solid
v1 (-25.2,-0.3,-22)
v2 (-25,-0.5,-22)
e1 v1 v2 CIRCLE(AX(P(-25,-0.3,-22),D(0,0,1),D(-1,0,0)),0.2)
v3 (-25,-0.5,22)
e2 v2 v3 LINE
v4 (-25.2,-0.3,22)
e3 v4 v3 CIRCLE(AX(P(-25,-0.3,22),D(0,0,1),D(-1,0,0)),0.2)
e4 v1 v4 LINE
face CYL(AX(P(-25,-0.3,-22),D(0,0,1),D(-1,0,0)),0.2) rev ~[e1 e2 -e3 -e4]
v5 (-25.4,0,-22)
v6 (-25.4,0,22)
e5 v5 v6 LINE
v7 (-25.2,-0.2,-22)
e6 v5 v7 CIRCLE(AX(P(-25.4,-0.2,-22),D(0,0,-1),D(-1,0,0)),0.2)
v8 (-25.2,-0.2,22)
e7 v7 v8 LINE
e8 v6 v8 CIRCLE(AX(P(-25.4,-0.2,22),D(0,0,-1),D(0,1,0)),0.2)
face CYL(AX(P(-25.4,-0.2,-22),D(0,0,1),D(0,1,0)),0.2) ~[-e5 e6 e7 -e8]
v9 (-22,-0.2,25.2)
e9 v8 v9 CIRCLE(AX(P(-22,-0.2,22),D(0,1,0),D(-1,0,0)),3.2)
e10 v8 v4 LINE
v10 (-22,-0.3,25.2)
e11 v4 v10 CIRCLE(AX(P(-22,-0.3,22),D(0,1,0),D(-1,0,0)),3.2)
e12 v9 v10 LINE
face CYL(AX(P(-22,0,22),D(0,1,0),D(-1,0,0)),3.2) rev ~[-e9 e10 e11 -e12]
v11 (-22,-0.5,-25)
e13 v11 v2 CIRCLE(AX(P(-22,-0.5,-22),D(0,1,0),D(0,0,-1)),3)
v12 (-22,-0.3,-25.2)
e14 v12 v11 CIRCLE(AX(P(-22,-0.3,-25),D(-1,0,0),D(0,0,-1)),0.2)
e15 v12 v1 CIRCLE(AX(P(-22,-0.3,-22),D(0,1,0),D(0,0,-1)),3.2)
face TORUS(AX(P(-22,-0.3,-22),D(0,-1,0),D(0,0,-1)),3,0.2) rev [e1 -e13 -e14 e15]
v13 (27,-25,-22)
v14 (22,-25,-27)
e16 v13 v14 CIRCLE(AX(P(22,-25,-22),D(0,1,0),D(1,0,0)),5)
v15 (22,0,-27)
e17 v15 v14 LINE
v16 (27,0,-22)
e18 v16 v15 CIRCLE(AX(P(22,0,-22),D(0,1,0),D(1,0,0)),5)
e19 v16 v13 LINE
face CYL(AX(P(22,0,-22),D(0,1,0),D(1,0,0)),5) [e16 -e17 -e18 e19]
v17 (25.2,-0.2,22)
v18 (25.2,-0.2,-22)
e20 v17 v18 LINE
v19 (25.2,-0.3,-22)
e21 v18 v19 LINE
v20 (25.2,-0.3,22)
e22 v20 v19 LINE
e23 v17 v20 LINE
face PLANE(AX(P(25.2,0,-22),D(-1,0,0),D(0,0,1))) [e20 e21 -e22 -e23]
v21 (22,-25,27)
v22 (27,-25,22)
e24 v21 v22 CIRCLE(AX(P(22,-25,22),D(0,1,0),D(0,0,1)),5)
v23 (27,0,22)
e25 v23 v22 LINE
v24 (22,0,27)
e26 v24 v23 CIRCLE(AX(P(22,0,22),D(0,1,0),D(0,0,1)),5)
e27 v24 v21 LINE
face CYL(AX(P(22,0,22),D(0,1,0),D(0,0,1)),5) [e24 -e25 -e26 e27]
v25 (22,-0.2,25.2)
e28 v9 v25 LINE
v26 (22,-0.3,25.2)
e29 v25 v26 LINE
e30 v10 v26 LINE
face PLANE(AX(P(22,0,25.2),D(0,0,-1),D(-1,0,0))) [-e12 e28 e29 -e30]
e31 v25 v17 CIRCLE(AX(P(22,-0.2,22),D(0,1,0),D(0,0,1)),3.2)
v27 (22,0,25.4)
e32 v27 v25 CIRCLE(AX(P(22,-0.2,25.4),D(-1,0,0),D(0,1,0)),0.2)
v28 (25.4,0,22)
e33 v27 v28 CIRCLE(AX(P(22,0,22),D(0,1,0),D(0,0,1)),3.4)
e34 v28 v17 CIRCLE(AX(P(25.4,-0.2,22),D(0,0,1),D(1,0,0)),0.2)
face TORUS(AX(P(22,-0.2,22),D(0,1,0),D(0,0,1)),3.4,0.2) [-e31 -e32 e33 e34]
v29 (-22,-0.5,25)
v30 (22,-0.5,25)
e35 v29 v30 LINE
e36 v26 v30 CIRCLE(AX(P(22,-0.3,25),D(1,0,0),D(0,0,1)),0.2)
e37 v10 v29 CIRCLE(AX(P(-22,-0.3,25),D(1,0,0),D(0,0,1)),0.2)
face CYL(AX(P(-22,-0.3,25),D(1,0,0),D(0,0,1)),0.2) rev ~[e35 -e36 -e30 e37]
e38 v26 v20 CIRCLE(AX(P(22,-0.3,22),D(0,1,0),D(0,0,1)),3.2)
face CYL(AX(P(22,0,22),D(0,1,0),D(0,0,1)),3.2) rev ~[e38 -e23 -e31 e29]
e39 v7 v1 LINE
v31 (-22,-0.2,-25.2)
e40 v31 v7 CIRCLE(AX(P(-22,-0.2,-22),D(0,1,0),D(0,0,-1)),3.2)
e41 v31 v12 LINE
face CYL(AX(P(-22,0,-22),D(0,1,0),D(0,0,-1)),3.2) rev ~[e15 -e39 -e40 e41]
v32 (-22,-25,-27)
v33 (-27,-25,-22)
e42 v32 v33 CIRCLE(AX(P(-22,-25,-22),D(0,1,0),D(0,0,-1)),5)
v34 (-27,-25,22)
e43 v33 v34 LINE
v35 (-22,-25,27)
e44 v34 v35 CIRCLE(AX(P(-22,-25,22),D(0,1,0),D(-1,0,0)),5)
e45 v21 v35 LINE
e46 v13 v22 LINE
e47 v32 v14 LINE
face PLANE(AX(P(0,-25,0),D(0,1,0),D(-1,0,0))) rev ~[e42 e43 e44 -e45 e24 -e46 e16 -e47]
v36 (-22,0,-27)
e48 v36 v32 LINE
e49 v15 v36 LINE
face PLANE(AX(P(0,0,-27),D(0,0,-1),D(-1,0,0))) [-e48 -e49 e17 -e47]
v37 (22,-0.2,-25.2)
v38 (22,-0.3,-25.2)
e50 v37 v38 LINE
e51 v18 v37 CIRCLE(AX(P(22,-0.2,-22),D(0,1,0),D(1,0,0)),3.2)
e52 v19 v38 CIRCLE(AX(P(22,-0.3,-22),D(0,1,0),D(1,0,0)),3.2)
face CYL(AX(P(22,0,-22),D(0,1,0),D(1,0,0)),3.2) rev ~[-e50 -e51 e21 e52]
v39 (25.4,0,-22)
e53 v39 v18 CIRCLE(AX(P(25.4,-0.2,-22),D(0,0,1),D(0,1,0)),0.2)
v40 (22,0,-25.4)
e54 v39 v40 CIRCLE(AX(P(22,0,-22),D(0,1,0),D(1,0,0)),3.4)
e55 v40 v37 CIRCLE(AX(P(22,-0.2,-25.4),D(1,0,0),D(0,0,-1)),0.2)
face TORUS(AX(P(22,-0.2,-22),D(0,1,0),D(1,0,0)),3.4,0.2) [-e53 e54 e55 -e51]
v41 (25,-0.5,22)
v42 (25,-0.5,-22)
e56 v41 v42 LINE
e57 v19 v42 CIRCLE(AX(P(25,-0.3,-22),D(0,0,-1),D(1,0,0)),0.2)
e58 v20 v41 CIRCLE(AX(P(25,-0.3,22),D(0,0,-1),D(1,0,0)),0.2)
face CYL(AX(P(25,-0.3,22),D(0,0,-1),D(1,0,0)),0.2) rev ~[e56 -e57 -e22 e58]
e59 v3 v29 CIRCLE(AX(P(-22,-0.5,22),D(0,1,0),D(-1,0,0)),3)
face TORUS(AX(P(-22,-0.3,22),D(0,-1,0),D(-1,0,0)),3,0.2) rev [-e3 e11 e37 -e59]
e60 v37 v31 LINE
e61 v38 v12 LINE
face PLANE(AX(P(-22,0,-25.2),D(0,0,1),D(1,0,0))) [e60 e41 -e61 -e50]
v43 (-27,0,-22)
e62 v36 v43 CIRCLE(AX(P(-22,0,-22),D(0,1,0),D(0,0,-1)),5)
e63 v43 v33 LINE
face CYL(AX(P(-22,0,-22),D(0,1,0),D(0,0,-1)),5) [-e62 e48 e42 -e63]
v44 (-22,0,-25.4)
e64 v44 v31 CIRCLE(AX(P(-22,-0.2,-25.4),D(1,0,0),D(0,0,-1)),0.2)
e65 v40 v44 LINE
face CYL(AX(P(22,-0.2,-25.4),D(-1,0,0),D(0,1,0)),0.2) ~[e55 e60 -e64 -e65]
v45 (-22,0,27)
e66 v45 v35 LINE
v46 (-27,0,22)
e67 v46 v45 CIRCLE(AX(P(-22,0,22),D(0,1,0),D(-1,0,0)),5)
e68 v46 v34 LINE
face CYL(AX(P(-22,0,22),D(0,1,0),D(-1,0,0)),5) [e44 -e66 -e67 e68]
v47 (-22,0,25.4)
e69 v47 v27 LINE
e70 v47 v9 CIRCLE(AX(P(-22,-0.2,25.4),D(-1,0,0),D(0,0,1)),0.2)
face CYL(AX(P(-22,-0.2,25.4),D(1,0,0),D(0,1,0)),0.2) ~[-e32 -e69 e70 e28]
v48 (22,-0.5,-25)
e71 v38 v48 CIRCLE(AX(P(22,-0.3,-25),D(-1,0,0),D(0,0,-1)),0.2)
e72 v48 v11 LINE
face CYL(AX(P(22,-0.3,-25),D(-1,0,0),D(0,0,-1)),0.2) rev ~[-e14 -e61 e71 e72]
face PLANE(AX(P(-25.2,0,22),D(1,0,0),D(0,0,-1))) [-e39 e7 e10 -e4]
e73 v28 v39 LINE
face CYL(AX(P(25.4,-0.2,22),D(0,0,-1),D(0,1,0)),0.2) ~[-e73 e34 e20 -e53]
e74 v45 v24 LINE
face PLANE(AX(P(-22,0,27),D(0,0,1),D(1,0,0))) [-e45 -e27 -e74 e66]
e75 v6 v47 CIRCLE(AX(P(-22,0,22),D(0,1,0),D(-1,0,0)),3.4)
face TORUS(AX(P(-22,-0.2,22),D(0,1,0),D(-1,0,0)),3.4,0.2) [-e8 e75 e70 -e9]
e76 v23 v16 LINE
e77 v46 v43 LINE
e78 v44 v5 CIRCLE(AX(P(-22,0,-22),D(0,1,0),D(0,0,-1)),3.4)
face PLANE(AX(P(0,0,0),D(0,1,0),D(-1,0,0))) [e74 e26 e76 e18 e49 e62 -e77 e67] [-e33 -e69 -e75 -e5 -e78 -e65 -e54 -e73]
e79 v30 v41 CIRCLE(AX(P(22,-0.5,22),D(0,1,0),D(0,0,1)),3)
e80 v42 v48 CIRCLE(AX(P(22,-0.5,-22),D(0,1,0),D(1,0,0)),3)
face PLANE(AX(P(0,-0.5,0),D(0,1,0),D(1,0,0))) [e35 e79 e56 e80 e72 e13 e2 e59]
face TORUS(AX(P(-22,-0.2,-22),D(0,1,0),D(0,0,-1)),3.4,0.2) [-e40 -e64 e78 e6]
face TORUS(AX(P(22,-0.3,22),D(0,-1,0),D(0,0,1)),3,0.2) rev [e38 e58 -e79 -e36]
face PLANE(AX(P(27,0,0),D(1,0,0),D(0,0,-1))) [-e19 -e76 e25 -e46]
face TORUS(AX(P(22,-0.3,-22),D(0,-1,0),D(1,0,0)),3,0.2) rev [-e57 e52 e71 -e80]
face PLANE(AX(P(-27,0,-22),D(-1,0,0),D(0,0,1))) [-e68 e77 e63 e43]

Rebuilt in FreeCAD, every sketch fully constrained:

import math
import FreeCAD as App
import Part
import Sketcher
Q = App.Units.Quantity


def edges_at(feature, points):
    """Names of the edges that pass closest to the given points."""
    edges = feature.Shape.Edges
    near = lambda p: min(range(len(edges)), key=lambda i: edges[i].distToShape(Part.Vertex(*p))[0])
    return sorted({f"Edge{near(p) + 1}" for p in points})

doc = App.newDocument("Part")
params = doc.addObject("Spreadsheet::Sheet", "Params")
for row, (alias, value) in enumerate([
    ("sketch1_radius", "5 mm"),
    ("sketch1_width", "44 mm"),
    ("pad1_length", "25 mm"),
    ("sketch2_radius", "3.2 mm"),
    ("sketch2_width", "44 mm"),
    ("pocket1_length", "0.5 mm"),
    ("fillet_radius", "0.2 mm"),
], start=1):
    params.set(f"A{row}", alias)
    params.set(f"B{row}", "=" + value)
    params.setAlias(f"B{row}", alias)

body = doc.addObject("PartDesign::Body", "Body")

# Sketch on XZ plane
sketch1 = body.newObject("Sketcher::SketchObject", "Sketch")
sketch1.AttachmentSupport = (doc.getObject("XZ_Plane"), [""])
sketch1.MapMode = "FlatFace"
sketch1.addGeometry(Part.LineSegment(App.Vector(-27, -22, 0), App.Vector(-27, 22, 0)), False)
sketch1.addGeometry(Part.ArcOfCircle(Part.Circle(App.Vector(-22, 22, 0), App.Vector(0, 0, 1), 5), math.radians(90), math.radians(180)), False)
sketch1.addGeometry(Part.LineSegment(App.Vector(-22, 27, 0), App.Vector(22, 27, 0)), False)
sketch1.addGeometry(Part.ArcOfCircle(Part.Circle(App.Vector(22, 22, 0), App.Vector(0, 0, 1), 5), math.radians(0), math.radians(90)), False)
sketch1.addGeometry(Part.LineSegment(App.Vector(27, 22, 0), App.Vector(27, -22, 0)), False)
sketch1.addGeometry(Part.ArcOfCircle(Part.Circle(App.Vector(22, -22, 0), App.Vector(0, 0, 1), 5), math.radians(-90), math.radians(0)), False)
sketch1.addGeometry(Part.LineSegment(App.Vector(22, -27, 0), App.Vector(-22, -27, 0)), False)
sketch1.addGeometry(Part.ArcOfCircle(Part.Circle(App.Vector(-22, -22, 0), App.Vector(0, 0, 1), 5), math.radians(180), math.radians(270)), False)
sketch1.addConstraint(Sketcher.Constraint("Tangent", 0, 2, 1, 2))
sketch1.addConstraint(Sketcher.Constraint("Tangent", 1, 1, 2, 1))
sketch1.addConstraint(Sketcher.Constraint("Tangent", 2, 2, 3, 2))
sketch1.addConstraint(Sketcher.Constraint("Tangent", 3, 1, 4, 1))
sketch1.addConstraint(Sketcher.Constraint("Tangent", 4, 2, 5, 2))
sketch1.addConstraint(Sketcher.Constraint("Tangent", 5, 1, 6, 1))
sketch1.addConstraint(Sketcher.Constraint("Tangent", 6, 2, 7, 2))
sketch1.addConstraint(Sketcher.Constraint("Tangent", 7, 1, 0, 1))
sketch1.addConstraint(Sketcher.Constraint("Vertical", 0))
sketch1.addConstraint(Sketcher.Constraint("Horizontal", 2))
sketch1.addConstraint(Sketcher.Constraint("Vertical", 4))
sketch1.addConstraint(Sketcher.Constraint("Horizontal", 6))
sketch1.addConstraint(Sketcher.Constraint("Equal", 1, 3))
sketch1.addConstraint(Sketcher.Constraint("Equal", 3, 5))
sketch1.addConstraint(Sketcher.Constraint("Equal", 5, 7))
sketch1.addConstraint(Sketcher.Constraint("Symmetric", 1, 3, 5, 3, -1, 1))
sketch1.addConstraint(Sketcher.Constraint("Equal", 6, 0))
sketch1.addConstraint(Sketcher.Constraint("Radius", 1, Q("5 mm")))
sketch1.addConstraint(Sketcher.Constraint("DistanceX", 2, 1, 2, 2, Q("44 mm")))
sketch1.setExpression("Constraints[17]", "Params.sketch1_radius")
sketch1.setExpression("Constraints[18]", "Params.sketch1_width")
pad1 = body.newObject("PartDesign::Pad", "Pad")
pad1.Profile = sketch1
pad1.setExpression("Length", "Params.pad1_length")

# Sketch on XZ plane
sketch2 = body.newObject("Sketcher::SketchObject", "Sketch001")
sketch2.AttachmentSupport = (doc.getObject("XZ_Plane"), [""])
sketch2.MapMode = "FlatFace"
sketch2.addGeometry(Part.LineSegment(App.Vector(-22, 25.2, 0), App.Vector(22, 25.2, 0)), False)
sketch2.addGeometry(Part.ArcOfCircle(Part.Circle(App.Vector(22, 22, 0), App.Vector(0, 0, 1), 3.2), math.radians(0), math.radians(90)), False)
sketch2.addGeometry(Part.LineSegment(App.Vector(25.2, 22, 0), App.Vector(25.2, -22, 0)), False)
sketch2.addGeometry(Part.ArcOfCircle(Part.Circle(App.Vector(22, -22, 0), App.Vector(0, 0, 1), 3.2), math.radians(-90), math.radians(0)), False)
sketch2.addGeometry(Part.LineSegment(App.Vector(22, -25.2, 0), App.Vector(-22, -25.2, 0)), False)
sketch2.addGeometry(Part.ArcOfCircle(Part.Circle(App.Vector(-22, -22, 0), App.Vector(0, 0, 1), 3.2), math.radians(180), math.radians(270)), False)
sketch2.addGeometry(Part.LineSegment(App.Vector(-25.2, -22, 0), App.Vector(-25.2, 22, 0)), False)
sketch2.addGeometry(Part.ArcOfCircle(Part.Circle(App.Vector(-22, 22, 0), App.Vector(0, 0, 1), 3.2), math.radians(90), math.radians(180)), False)
sketch2.addConstraint(Sketcher.Constraint("Tangent", 0, 2, 1, 2))
sketch2.addConstraint(Sketcher.Constraint("Tangent", 1, 1, 2, 1))
sketch2.addConstraint(Sketcher.Constraint("Tangent", 2, 2, 3, 2))
sketch2.addConstraint(Sketcher.Constraint("Tangent", 3, 1, 4, 1))
sketch2.addConstraint(Sketcher.Constraint("Tangent", 4, 2, 5, 2))
sketch2.addConstraint(Sketcher.Constraint("Tangent", 5, 1, 6, 1))
sketch2.addConstraint(Sketcher.Constraint("Tangent", 6, 2, 7, 2))
sketch2.addConstraint(Sketcher.Constraint("Tangent", 7, 1, 0, 1))
sketch2.addConstraint(Sketcher.Constraint("Horizontal", 0))
sketch2.addConstraint(Sketcher.Constraint("Vertical", 2))
sketch2.addConstraint(Sketcher.Constraint("Horizontal", 4))
sketch2.addConstraint(Sketcher.Constraint("Vertical", 6))
sketch2.addConstraint(Sketcher.Constraint("Equal", 1, 3))
sketch2.addConstraint(Sketcher.Constraint("Equal", 3, 5))
sketch2.addConstraint(Sketcher.Constraint("Equal", 5, 7))
sketch2.addConstraint(Sketcher.Constraint("Symmetric", 1, 3, 5, 3, -1, 1))
sketch2.addConstraint(Sketcher.Constraint("Equal", 4, 2))
sketch2.addConstraint(Sketcher.Constraint("Radius", 1, Q("3.2 mm")))
sketch2.addConstraint(Sketcher.Constraint("DistanceX", 0, 1, 0, 2, Q("44 mm")))
sketch2.setExpression("Constraints[17]", "Params.sketch2_radius")
sketch2.setExpression("Constraints[18]", "Params.sketch2_width")
pocket1 = body.newObject("PartDesign::Pocket", "Pocket")
pocket1.Profile = sketch2
pocket1.setExpression("Length", "Params.pocket1_length")
pocket1.Reversed = True
doc.recompute()

fillet = body.newObject("PartDesign::Fillet", "Fillet")
fillet.Base = (pocket1, edges_at(pocket1, [
    (-24.263, -0.5, -24.263),
    (0, -0.5, -25.2),
    (24.263, -0.5, -24.263),
    (25.2, -0.5, 0),
    (24.263, -0.5, 24.263),
    (0, -0.5, 25.2),
    (-24.263, -0.5, 24.263),
    (-25.2, -0.5, 0),
    (-24.263, 0, -24.263),
    (0, 0, -25.2),
    (24.263, 0, -24.263),
    (25.2, 0, 0),
    (24.263, 0, 24.263),
    (0, 0, 25.2),
    (-24.263, 0, 24.263),
    (-25.2, 0, 0),
]))
fillet.setExpression("Radius", "Params.fillet_radius")

doc.recompute()
